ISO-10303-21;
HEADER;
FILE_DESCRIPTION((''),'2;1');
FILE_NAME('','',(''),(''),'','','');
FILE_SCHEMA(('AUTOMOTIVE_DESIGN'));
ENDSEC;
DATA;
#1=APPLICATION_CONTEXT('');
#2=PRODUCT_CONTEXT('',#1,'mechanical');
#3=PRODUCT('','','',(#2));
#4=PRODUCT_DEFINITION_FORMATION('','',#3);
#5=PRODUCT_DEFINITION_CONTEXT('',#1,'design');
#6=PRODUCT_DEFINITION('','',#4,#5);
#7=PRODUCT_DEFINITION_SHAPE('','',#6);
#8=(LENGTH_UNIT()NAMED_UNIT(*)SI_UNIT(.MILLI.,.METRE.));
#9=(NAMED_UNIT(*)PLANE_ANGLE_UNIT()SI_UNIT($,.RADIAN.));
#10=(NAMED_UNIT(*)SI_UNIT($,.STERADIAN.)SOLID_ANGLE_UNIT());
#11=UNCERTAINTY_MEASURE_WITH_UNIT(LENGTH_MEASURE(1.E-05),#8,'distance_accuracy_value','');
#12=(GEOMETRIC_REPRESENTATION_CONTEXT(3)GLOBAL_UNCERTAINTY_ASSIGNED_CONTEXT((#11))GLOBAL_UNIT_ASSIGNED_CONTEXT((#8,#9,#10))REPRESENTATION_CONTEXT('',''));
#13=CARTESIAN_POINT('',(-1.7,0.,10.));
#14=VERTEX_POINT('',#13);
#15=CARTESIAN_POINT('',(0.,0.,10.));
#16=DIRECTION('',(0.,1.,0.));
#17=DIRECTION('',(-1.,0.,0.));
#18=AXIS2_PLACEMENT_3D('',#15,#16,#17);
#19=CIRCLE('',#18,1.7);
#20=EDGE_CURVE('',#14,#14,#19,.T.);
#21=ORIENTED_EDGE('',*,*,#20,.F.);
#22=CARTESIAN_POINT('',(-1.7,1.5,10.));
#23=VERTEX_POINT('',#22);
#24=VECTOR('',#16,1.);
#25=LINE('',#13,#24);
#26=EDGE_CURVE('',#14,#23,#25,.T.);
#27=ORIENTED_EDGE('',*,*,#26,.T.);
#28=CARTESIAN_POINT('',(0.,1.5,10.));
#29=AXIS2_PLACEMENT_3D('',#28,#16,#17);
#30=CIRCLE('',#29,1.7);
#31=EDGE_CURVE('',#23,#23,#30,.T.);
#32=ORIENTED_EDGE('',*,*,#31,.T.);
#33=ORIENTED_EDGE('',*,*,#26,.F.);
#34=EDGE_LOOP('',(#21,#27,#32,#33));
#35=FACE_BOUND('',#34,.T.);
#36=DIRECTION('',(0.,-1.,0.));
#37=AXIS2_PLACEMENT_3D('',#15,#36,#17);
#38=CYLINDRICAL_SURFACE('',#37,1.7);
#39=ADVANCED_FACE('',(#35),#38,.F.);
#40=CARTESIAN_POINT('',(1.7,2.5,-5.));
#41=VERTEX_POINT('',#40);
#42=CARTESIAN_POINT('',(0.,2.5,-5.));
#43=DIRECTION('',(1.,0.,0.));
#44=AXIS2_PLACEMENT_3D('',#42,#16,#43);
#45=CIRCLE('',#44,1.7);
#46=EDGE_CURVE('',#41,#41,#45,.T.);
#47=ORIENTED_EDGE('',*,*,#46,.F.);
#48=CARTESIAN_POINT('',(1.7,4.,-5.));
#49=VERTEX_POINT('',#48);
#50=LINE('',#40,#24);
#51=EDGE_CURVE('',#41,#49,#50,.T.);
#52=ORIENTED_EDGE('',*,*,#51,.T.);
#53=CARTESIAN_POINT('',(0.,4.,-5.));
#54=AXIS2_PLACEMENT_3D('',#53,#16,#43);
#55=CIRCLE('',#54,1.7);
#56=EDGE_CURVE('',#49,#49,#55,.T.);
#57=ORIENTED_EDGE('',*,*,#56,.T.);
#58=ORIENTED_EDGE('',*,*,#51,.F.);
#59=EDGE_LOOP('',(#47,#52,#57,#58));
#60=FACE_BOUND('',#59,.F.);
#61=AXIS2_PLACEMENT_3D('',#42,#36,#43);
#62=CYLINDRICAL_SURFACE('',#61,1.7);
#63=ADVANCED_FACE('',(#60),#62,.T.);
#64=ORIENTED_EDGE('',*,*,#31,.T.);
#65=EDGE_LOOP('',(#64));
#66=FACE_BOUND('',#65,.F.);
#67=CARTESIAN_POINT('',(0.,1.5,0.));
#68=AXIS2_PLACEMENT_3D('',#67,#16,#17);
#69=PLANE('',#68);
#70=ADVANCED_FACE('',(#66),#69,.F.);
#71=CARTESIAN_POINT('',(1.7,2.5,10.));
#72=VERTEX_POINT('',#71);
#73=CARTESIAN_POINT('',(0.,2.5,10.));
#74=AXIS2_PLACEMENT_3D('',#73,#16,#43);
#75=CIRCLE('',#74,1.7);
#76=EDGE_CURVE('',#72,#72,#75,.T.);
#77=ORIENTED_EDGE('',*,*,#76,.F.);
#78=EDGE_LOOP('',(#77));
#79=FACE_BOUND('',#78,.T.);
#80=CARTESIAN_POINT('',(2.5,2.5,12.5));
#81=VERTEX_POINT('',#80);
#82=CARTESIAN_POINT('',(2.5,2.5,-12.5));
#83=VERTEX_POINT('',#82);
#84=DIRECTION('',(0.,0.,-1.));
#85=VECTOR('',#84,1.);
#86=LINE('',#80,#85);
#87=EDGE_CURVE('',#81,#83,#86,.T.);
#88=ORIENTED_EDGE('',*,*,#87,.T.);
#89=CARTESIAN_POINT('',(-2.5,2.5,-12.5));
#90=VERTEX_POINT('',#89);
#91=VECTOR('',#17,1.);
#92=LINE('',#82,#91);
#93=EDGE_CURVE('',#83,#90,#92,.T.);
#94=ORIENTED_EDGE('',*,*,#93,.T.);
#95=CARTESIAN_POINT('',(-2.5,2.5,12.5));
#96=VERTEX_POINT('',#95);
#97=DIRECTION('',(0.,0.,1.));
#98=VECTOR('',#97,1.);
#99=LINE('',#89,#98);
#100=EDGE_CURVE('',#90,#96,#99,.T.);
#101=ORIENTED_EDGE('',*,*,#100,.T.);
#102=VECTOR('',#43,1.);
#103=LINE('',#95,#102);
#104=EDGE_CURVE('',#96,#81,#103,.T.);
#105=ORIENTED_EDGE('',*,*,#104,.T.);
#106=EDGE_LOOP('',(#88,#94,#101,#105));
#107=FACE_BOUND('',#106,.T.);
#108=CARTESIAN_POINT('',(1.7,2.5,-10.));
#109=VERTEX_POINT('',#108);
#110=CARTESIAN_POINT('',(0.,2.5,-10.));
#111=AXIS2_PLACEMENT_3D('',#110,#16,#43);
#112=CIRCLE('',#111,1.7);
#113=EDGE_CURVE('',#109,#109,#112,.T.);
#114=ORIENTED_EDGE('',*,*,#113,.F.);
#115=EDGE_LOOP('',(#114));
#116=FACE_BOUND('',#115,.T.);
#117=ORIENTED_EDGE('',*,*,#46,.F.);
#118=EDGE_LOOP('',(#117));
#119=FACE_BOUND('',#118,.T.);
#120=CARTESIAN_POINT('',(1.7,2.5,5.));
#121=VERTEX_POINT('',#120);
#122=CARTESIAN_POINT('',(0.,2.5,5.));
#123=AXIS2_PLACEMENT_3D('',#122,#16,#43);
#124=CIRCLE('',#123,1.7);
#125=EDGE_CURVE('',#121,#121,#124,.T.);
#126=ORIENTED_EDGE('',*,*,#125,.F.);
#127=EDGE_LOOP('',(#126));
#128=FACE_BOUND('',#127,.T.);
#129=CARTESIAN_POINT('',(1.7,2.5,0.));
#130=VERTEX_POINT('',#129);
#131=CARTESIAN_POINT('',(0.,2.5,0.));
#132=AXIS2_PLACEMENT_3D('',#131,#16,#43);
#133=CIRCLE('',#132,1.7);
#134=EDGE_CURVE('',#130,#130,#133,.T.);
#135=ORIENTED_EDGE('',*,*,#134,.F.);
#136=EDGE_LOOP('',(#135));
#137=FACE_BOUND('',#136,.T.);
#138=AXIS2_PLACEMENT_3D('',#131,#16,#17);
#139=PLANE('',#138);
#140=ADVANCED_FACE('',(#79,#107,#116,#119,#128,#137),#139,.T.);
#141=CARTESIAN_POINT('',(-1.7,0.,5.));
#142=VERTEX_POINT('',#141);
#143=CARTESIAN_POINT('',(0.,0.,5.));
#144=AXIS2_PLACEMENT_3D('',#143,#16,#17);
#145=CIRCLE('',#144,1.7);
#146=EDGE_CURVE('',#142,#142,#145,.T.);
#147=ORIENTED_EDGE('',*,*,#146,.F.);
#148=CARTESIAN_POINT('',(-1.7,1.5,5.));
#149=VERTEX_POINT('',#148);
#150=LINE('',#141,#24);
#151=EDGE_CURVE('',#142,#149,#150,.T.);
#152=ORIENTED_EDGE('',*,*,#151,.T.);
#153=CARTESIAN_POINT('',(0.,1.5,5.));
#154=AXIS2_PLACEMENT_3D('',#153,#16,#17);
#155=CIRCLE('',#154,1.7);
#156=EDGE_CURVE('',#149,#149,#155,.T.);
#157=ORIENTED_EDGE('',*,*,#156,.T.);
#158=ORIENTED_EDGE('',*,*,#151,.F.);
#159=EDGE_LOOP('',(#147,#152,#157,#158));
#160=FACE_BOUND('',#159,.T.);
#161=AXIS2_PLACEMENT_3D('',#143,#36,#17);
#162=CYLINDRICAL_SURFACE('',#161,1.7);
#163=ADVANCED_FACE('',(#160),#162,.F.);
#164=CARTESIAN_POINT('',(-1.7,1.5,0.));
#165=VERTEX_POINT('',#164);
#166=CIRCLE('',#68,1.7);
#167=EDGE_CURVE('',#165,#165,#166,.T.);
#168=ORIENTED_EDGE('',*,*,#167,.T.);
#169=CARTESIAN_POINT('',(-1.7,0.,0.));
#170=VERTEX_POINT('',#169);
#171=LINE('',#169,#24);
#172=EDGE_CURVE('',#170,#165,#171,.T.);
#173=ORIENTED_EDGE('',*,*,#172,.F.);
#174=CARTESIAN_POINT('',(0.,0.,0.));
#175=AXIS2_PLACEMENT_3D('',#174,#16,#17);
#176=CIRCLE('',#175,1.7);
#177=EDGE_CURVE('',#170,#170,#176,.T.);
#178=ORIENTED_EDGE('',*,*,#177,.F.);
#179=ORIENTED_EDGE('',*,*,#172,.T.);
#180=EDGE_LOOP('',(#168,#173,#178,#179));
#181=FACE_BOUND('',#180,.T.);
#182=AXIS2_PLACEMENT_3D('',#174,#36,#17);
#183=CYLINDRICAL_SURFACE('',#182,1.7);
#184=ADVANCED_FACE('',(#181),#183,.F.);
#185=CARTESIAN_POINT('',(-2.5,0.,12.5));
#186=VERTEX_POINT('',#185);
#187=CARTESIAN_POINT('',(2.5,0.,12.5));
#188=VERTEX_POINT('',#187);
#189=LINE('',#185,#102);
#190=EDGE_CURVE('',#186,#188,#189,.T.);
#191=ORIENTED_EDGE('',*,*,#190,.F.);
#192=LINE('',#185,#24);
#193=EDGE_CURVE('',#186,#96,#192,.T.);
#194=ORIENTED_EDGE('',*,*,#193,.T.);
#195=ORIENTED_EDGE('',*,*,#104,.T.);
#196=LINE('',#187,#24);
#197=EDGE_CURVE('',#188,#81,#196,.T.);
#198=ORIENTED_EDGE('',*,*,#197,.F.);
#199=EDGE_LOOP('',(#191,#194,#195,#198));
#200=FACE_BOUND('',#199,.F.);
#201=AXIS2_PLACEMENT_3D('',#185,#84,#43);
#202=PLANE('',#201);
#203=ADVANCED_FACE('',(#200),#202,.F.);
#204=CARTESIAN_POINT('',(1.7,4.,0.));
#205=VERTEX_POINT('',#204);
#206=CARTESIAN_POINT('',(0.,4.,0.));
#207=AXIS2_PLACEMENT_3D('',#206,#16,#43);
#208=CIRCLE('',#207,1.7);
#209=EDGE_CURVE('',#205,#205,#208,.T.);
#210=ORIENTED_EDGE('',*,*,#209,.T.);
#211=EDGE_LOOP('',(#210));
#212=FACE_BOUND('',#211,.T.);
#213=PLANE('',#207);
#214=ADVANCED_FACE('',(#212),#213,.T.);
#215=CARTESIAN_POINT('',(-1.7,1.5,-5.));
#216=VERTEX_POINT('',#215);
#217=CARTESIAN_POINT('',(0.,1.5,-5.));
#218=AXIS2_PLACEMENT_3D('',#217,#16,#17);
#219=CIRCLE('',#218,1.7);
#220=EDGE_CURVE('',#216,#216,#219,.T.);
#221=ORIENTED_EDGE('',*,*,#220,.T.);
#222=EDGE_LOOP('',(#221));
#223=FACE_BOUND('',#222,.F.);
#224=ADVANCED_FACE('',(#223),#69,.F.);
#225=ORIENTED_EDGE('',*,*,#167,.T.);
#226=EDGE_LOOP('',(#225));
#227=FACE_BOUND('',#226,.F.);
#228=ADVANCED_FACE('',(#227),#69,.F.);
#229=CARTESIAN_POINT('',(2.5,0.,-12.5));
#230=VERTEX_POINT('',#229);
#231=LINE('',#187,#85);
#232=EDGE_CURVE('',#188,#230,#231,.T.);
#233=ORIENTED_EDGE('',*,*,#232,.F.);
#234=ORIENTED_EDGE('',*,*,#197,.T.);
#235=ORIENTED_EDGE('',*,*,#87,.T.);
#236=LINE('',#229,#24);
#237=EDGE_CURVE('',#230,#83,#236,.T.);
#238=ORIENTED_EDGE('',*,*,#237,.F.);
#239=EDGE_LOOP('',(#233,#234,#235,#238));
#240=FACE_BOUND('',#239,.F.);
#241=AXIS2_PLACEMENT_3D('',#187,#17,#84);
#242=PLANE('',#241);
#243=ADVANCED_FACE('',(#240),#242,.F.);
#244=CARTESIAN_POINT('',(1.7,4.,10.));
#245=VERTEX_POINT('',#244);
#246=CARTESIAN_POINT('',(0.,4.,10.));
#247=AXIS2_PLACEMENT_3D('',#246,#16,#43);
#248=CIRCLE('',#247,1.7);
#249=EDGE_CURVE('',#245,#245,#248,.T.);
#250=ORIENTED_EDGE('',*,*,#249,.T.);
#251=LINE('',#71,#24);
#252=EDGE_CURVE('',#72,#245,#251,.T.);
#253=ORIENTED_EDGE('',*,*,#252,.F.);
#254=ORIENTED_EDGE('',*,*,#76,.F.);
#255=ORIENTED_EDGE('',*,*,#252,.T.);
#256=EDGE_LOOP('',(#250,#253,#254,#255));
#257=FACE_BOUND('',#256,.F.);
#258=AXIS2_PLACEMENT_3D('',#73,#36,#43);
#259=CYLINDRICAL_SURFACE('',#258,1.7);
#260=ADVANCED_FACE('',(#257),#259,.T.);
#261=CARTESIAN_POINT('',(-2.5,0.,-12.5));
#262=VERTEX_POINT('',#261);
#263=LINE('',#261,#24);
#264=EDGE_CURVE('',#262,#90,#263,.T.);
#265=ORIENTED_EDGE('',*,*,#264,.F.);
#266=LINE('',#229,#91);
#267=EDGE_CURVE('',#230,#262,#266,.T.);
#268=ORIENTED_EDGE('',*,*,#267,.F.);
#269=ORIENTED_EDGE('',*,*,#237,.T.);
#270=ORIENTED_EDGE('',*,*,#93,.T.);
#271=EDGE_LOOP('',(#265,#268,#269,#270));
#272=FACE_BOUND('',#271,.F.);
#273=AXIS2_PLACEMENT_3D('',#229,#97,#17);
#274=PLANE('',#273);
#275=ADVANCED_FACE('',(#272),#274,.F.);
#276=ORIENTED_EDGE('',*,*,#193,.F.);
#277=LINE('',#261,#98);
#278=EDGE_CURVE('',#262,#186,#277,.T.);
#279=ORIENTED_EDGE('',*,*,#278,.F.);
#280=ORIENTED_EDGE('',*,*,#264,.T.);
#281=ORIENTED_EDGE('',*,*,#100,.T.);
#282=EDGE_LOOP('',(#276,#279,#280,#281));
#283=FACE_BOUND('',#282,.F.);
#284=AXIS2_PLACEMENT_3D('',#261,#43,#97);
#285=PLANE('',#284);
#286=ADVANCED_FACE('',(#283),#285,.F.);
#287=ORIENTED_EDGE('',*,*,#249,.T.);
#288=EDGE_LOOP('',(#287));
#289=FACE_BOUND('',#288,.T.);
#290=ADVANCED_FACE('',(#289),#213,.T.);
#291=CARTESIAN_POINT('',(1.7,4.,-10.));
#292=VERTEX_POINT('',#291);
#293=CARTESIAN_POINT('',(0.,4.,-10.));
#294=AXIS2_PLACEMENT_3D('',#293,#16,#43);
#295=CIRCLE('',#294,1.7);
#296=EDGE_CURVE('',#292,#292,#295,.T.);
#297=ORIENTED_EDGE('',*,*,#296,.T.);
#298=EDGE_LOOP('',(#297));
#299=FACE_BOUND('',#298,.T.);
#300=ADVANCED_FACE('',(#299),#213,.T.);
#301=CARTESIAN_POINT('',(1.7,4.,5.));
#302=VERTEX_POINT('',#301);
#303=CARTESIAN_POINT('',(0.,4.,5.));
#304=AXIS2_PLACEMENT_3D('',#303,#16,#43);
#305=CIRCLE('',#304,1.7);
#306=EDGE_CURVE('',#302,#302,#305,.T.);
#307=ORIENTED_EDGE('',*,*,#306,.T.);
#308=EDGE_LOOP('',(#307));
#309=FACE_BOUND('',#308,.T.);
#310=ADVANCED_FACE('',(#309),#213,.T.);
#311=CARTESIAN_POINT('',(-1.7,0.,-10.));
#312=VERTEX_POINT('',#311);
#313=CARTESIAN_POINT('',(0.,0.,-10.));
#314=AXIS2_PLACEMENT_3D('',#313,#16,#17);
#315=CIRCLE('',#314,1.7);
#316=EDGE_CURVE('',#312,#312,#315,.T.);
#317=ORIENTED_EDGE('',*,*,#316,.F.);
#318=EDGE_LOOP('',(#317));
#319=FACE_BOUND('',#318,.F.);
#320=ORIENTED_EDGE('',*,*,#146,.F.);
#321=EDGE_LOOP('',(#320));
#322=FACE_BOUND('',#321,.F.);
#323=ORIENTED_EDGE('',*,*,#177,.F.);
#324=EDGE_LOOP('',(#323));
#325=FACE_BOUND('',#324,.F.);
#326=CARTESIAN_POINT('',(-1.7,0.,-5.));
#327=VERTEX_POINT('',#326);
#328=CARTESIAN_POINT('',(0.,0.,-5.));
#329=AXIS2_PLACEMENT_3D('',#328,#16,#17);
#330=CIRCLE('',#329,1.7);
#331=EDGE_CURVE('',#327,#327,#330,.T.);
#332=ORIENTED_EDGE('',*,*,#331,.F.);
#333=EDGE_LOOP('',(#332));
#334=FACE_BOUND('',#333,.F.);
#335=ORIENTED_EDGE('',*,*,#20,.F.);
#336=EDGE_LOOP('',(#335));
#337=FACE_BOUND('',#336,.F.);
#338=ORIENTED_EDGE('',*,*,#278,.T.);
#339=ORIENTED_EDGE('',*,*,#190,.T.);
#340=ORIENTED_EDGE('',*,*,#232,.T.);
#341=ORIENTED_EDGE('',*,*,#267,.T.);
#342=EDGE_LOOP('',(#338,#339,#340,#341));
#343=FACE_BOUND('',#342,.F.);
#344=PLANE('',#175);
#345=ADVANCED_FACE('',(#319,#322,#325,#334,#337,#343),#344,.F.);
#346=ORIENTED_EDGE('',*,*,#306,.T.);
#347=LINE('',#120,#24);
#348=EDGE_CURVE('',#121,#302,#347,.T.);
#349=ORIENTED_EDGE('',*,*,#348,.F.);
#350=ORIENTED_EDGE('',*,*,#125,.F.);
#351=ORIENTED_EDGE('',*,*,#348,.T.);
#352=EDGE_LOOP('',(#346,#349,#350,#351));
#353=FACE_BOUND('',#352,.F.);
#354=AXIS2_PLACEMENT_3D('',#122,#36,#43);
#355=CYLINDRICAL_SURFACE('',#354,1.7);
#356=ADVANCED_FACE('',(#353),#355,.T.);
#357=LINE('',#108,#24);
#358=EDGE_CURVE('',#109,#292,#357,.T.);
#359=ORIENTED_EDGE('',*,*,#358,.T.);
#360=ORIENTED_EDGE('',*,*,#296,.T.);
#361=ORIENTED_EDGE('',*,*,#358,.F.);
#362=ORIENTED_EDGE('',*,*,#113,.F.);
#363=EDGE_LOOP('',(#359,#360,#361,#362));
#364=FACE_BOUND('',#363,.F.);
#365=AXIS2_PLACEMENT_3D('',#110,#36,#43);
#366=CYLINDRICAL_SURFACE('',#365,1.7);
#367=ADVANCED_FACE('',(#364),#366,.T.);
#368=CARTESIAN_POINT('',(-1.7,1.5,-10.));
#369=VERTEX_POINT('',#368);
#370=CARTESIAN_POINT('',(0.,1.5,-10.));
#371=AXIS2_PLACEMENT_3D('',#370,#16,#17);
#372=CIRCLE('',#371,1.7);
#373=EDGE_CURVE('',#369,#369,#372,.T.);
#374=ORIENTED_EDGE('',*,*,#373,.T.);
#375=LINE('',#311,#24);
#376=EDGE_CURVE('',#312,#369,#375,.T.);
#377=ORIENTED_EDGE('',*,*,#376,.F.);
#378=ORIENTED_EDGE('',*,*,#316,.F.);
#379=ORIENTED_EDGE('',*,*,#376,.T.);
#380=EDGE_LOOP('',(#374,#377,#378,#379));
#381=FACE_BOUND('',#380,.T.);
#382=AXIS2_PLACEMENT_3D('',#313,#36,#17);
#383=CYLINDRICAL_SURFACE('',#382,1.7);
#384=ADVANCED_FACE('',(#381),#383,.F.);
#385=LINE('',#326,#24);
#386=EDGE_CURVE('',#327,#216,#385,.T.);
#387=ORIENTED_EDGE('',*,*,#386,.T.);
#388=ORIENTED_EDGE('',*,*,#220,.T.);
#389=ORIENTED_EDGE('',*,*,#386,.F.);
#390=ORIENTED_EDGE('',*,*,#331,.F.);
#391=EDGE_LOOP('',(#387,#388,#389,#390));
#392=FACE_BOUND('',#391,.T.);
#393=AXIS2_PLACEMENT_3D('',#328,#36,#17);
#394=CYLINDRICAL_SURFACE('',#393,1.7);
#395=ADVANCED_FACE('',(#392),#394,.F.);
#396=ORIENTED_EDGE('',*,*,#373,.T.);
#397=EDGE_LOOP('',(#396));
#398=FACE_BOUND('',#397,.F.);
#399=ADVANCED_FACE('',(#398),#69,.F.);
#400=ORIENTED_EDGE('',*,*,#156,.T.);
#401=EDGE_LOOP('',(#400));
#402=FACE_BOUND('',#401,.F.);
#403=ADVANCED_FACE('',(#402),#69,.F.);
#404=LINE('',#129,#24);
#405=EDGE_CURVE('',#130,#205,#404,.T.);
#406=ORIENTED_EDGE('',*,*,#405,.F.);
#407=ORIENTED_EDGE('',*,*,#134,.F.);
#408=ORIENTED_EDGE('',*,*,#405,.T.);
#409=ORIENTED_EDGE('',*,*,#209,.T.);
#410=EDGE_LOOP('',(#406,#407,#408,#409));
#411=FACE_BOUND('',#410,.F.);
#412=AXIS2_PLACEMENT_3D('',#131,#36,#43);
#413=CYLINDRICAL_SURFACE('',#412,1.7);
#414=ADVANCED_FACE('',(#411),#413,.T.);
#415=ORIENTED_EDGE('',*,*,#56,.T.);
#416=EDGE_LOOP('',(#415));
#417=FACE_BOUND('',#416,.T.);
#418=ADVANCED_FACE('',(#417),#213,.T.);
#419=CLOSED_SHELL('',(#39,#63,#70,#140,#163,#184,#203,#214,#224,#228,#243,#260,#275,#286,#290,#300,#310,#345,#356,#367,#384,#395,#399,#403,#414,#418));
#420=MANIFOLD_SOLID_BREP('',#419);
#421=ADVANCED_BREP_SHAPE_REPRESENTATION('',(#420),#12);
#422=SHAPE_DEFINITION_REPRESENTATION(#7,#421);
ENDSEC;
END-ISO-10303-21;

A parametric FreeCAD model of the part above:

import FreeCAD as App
import Part
import Sketcher

V = App.Vector

doc = App.newDocument("Part")
body = doc.addObject("PartDesign::Body", "Body")

# Sketch on XZ plane
sketch1 = body.newObject("Sketcher::SketchObject", "Sketch")
sketch1.AttachmentSupport = (doc.getObject("XZ_Plane"), [""])
sketch1.MapMode = "FlatFace"
sketch1.addGeometry(Part.LineSegment(V(-2, -12, 0), V(-2, 12, 0)), False)
sketch1.addGeometry(Part.LineSegment(V(-2, 12, 0), V(2, 12, 0)), False)
sketch1.addGeometry(Part.LineSegment(V(2, 12, 0), V(2, -12, 0)), False)
sketch1.addGeometry(Part.LineSegment(V(2, -12, 0), V(-2, -12, 0)), False)
sketch1.addConstraint(Sketcher.Constraint("Coincident", 0, 2, 1, 1))
sketch1.addConstraint(Sketcher.Constraint("Coincident", 1, 2, 2, 1))
sketch1.addConstraint(Sketcher.Constraint("Coincident", 2, 2, 3, 1))
sketch1.addConstraint(Sketcher.Constraint("Coincident", 3, 2, 0, 1))
sketch1.addConstraint(Sketcher.Constraint("Vertical", 0))
sketch1.addConstraint(Sketcher.Constraint("Horizontal", 1))
sketch1.addConstraint(Sketcher.Constraint("Vertical", 2))
sketch1.addConstraint(Sketcher.Constraint("Horizontal", 3))
sketch1.addConstraint(Sketcher.Constraint("Symmetric", 0, 2, 2, 2, -1, 1))
sketch1.addConstraint(Sketcher.Constraint("DistanceX", 1, 1, 1, 2, 5.0))
sketch1.addConstraint(Sketcher.Constraint("DistanceY", 0, 1, 0, 2, 25.0))
pad1 = body.newObject("PartDesign::Pad", "Pad")
pad1.Profile = sketch1
pad1.Length = 2.5
pad1.Reversed = True

# Sketch on XZ plane
sketch2 = body.newObject("Sketcher::SketchObject", "Sketch001")
sketch2.AttachmentSupport = (doc.getObject("XZ_Plane"), [""])
sketch2.MapMode = "FlatFace"
sketch2.addGeometry(Part.Circle(V(0, 10, 0), V(0, 0, 1), 1.7), False)
sketch2.addGeometry(Part.Circle(V(0, 5, 0), V(0, 0, 1), 1.7), False)
sketch2.addGeometry(Part.Circle(V(0, 0, 0), V(0, 0, 1), 1.7), False)
sketch2.addGeometry(Part.Circle(V(0, -5, 0), V(0, 0, 1), 1.7), False)
sketch2.addGeometry(Part.Circle(V(0, -10, 0), V(0, 0, 1), 1.7), False)
sketch2.addConstraint(Sketcher.Constraint("Coincident", 2, 3, -1, 1))
sketch2.addConstraint(Sketcher.Constraint("Equal", 0, 1))
sketch2.addConstraint(Sketcher.Constraint("Equal", 1, 2))
sketch2.addConstraint(Sketcher.Constraint("Equal", 2, 3))
sketch2.addConstraint(Sketcher.Constraint("Equal", 3, 4))
sketch2.addConstraint(Sketcher.Constraint("Symmetric", 1, 3, 3, 3, -1, 1))
sketch2.addConstraint(Sketcher.Constraint("Symmetric", 0, 3, 4, 3, -1, 1))
sketch2.addConstraint(Sketcher.Constraint("PointOnObject", 0, 3, -2))
sketch2.addConstraint(Sketcher.Constraint("PointOnObject", 1, 3, -2))
sketch2.addConstraint(Sketcher.Constraint("Diameter", 0, 3.4))
sketch2.addConstraint(Sketcher.Constraint("DistanceY", -1, 1, 0, 3, 10.0))
sketch2.addConstraint(Sketcher.Constraint("DistanceY", -1, 1, 1, 3, 5.0))
pocket1 = body.newObject("PartDesign::Pocket", "Pocket")
pocket1.Profile = sketch2
pocket1.Length = 1.5

# Sketch on XZ plane
sketch3 = body.newObject("Sketcher::SketchObject", "Sketch002")
sketch3.AttachmentSupport = (doc.getObject("XZ_Plane"), [""])
sketch3.MapMode = "FlatFace"
sketch3.AttachmentOffset = App.Placement(V(0, 0, -2.5), App.Rotation())
sketch3.addGeometry(Part.Circle(V(0, 10, 0), V(0, 0, 1), 1.7), False)
sketch3.addGeometry(Part.Circle(V(0, 5, 0), V(0, 0, 1), 1.7), False)
sketch3.addGeometry(Part.Circle(V(0, 0, 0), V(0, 0, 1), 1.7), False)
sketch3.addGeometry(Part.Circle(V(0, -5, 0), V(0, 0, 1), 1.7), False)
sketch3.addGeometry(Part.Circle(V(0, -10, 0), V(0, 0, 1), 1.7), False)
sketch3.addConstraint(Sketcher.Constraint("Coincident", 2, 3, -1, 1))
sketch3.addConstraint(Sketcher.Constraint("Equal", 0, 1))
sketch3.addConstraint(Sketcher.Constraint("Equal", 1, 2))
sketch3.addConstraint(Sketcher.Constraint("Equal", 2, 3))
sketch3.addConstraint(Sketcher.Constraint("Equal", 3, 4))
sketch3.addConstraint(Sketcher.Constraint("Symmetric", 1, 3, 3, 3, -1, 1))
sketch3.addConstraint(Sketcher.Constraint("Symmetric", 0, 3, 4, 3, -1, 1))
sketch3.addConstraint(Sketcher.Constraint("PointOnObject", 0, 3, -2))
sketch3.addConstraint(Sketcher.Constraint("PointOnObject", 1, 3, -2))
sketch3.addConstraint(Sketcher.Constraint("Diameter", 0, 3.4))
sketch3.addConstraint(Sketcher.Constraint("DistanceY", -1, 1, 0, 3, 10.0))
sketch3.addConstraint(Sketcher.Constraint("DistanceY", -1, 1, 1, 3, 5.0))
pad2 = body.newObject("PartDesign::Pad", "Pad001")
pad2.Profile = sketch3
pad2.Length = 1.5
pad2.Reversed = True

doc.recompute()
